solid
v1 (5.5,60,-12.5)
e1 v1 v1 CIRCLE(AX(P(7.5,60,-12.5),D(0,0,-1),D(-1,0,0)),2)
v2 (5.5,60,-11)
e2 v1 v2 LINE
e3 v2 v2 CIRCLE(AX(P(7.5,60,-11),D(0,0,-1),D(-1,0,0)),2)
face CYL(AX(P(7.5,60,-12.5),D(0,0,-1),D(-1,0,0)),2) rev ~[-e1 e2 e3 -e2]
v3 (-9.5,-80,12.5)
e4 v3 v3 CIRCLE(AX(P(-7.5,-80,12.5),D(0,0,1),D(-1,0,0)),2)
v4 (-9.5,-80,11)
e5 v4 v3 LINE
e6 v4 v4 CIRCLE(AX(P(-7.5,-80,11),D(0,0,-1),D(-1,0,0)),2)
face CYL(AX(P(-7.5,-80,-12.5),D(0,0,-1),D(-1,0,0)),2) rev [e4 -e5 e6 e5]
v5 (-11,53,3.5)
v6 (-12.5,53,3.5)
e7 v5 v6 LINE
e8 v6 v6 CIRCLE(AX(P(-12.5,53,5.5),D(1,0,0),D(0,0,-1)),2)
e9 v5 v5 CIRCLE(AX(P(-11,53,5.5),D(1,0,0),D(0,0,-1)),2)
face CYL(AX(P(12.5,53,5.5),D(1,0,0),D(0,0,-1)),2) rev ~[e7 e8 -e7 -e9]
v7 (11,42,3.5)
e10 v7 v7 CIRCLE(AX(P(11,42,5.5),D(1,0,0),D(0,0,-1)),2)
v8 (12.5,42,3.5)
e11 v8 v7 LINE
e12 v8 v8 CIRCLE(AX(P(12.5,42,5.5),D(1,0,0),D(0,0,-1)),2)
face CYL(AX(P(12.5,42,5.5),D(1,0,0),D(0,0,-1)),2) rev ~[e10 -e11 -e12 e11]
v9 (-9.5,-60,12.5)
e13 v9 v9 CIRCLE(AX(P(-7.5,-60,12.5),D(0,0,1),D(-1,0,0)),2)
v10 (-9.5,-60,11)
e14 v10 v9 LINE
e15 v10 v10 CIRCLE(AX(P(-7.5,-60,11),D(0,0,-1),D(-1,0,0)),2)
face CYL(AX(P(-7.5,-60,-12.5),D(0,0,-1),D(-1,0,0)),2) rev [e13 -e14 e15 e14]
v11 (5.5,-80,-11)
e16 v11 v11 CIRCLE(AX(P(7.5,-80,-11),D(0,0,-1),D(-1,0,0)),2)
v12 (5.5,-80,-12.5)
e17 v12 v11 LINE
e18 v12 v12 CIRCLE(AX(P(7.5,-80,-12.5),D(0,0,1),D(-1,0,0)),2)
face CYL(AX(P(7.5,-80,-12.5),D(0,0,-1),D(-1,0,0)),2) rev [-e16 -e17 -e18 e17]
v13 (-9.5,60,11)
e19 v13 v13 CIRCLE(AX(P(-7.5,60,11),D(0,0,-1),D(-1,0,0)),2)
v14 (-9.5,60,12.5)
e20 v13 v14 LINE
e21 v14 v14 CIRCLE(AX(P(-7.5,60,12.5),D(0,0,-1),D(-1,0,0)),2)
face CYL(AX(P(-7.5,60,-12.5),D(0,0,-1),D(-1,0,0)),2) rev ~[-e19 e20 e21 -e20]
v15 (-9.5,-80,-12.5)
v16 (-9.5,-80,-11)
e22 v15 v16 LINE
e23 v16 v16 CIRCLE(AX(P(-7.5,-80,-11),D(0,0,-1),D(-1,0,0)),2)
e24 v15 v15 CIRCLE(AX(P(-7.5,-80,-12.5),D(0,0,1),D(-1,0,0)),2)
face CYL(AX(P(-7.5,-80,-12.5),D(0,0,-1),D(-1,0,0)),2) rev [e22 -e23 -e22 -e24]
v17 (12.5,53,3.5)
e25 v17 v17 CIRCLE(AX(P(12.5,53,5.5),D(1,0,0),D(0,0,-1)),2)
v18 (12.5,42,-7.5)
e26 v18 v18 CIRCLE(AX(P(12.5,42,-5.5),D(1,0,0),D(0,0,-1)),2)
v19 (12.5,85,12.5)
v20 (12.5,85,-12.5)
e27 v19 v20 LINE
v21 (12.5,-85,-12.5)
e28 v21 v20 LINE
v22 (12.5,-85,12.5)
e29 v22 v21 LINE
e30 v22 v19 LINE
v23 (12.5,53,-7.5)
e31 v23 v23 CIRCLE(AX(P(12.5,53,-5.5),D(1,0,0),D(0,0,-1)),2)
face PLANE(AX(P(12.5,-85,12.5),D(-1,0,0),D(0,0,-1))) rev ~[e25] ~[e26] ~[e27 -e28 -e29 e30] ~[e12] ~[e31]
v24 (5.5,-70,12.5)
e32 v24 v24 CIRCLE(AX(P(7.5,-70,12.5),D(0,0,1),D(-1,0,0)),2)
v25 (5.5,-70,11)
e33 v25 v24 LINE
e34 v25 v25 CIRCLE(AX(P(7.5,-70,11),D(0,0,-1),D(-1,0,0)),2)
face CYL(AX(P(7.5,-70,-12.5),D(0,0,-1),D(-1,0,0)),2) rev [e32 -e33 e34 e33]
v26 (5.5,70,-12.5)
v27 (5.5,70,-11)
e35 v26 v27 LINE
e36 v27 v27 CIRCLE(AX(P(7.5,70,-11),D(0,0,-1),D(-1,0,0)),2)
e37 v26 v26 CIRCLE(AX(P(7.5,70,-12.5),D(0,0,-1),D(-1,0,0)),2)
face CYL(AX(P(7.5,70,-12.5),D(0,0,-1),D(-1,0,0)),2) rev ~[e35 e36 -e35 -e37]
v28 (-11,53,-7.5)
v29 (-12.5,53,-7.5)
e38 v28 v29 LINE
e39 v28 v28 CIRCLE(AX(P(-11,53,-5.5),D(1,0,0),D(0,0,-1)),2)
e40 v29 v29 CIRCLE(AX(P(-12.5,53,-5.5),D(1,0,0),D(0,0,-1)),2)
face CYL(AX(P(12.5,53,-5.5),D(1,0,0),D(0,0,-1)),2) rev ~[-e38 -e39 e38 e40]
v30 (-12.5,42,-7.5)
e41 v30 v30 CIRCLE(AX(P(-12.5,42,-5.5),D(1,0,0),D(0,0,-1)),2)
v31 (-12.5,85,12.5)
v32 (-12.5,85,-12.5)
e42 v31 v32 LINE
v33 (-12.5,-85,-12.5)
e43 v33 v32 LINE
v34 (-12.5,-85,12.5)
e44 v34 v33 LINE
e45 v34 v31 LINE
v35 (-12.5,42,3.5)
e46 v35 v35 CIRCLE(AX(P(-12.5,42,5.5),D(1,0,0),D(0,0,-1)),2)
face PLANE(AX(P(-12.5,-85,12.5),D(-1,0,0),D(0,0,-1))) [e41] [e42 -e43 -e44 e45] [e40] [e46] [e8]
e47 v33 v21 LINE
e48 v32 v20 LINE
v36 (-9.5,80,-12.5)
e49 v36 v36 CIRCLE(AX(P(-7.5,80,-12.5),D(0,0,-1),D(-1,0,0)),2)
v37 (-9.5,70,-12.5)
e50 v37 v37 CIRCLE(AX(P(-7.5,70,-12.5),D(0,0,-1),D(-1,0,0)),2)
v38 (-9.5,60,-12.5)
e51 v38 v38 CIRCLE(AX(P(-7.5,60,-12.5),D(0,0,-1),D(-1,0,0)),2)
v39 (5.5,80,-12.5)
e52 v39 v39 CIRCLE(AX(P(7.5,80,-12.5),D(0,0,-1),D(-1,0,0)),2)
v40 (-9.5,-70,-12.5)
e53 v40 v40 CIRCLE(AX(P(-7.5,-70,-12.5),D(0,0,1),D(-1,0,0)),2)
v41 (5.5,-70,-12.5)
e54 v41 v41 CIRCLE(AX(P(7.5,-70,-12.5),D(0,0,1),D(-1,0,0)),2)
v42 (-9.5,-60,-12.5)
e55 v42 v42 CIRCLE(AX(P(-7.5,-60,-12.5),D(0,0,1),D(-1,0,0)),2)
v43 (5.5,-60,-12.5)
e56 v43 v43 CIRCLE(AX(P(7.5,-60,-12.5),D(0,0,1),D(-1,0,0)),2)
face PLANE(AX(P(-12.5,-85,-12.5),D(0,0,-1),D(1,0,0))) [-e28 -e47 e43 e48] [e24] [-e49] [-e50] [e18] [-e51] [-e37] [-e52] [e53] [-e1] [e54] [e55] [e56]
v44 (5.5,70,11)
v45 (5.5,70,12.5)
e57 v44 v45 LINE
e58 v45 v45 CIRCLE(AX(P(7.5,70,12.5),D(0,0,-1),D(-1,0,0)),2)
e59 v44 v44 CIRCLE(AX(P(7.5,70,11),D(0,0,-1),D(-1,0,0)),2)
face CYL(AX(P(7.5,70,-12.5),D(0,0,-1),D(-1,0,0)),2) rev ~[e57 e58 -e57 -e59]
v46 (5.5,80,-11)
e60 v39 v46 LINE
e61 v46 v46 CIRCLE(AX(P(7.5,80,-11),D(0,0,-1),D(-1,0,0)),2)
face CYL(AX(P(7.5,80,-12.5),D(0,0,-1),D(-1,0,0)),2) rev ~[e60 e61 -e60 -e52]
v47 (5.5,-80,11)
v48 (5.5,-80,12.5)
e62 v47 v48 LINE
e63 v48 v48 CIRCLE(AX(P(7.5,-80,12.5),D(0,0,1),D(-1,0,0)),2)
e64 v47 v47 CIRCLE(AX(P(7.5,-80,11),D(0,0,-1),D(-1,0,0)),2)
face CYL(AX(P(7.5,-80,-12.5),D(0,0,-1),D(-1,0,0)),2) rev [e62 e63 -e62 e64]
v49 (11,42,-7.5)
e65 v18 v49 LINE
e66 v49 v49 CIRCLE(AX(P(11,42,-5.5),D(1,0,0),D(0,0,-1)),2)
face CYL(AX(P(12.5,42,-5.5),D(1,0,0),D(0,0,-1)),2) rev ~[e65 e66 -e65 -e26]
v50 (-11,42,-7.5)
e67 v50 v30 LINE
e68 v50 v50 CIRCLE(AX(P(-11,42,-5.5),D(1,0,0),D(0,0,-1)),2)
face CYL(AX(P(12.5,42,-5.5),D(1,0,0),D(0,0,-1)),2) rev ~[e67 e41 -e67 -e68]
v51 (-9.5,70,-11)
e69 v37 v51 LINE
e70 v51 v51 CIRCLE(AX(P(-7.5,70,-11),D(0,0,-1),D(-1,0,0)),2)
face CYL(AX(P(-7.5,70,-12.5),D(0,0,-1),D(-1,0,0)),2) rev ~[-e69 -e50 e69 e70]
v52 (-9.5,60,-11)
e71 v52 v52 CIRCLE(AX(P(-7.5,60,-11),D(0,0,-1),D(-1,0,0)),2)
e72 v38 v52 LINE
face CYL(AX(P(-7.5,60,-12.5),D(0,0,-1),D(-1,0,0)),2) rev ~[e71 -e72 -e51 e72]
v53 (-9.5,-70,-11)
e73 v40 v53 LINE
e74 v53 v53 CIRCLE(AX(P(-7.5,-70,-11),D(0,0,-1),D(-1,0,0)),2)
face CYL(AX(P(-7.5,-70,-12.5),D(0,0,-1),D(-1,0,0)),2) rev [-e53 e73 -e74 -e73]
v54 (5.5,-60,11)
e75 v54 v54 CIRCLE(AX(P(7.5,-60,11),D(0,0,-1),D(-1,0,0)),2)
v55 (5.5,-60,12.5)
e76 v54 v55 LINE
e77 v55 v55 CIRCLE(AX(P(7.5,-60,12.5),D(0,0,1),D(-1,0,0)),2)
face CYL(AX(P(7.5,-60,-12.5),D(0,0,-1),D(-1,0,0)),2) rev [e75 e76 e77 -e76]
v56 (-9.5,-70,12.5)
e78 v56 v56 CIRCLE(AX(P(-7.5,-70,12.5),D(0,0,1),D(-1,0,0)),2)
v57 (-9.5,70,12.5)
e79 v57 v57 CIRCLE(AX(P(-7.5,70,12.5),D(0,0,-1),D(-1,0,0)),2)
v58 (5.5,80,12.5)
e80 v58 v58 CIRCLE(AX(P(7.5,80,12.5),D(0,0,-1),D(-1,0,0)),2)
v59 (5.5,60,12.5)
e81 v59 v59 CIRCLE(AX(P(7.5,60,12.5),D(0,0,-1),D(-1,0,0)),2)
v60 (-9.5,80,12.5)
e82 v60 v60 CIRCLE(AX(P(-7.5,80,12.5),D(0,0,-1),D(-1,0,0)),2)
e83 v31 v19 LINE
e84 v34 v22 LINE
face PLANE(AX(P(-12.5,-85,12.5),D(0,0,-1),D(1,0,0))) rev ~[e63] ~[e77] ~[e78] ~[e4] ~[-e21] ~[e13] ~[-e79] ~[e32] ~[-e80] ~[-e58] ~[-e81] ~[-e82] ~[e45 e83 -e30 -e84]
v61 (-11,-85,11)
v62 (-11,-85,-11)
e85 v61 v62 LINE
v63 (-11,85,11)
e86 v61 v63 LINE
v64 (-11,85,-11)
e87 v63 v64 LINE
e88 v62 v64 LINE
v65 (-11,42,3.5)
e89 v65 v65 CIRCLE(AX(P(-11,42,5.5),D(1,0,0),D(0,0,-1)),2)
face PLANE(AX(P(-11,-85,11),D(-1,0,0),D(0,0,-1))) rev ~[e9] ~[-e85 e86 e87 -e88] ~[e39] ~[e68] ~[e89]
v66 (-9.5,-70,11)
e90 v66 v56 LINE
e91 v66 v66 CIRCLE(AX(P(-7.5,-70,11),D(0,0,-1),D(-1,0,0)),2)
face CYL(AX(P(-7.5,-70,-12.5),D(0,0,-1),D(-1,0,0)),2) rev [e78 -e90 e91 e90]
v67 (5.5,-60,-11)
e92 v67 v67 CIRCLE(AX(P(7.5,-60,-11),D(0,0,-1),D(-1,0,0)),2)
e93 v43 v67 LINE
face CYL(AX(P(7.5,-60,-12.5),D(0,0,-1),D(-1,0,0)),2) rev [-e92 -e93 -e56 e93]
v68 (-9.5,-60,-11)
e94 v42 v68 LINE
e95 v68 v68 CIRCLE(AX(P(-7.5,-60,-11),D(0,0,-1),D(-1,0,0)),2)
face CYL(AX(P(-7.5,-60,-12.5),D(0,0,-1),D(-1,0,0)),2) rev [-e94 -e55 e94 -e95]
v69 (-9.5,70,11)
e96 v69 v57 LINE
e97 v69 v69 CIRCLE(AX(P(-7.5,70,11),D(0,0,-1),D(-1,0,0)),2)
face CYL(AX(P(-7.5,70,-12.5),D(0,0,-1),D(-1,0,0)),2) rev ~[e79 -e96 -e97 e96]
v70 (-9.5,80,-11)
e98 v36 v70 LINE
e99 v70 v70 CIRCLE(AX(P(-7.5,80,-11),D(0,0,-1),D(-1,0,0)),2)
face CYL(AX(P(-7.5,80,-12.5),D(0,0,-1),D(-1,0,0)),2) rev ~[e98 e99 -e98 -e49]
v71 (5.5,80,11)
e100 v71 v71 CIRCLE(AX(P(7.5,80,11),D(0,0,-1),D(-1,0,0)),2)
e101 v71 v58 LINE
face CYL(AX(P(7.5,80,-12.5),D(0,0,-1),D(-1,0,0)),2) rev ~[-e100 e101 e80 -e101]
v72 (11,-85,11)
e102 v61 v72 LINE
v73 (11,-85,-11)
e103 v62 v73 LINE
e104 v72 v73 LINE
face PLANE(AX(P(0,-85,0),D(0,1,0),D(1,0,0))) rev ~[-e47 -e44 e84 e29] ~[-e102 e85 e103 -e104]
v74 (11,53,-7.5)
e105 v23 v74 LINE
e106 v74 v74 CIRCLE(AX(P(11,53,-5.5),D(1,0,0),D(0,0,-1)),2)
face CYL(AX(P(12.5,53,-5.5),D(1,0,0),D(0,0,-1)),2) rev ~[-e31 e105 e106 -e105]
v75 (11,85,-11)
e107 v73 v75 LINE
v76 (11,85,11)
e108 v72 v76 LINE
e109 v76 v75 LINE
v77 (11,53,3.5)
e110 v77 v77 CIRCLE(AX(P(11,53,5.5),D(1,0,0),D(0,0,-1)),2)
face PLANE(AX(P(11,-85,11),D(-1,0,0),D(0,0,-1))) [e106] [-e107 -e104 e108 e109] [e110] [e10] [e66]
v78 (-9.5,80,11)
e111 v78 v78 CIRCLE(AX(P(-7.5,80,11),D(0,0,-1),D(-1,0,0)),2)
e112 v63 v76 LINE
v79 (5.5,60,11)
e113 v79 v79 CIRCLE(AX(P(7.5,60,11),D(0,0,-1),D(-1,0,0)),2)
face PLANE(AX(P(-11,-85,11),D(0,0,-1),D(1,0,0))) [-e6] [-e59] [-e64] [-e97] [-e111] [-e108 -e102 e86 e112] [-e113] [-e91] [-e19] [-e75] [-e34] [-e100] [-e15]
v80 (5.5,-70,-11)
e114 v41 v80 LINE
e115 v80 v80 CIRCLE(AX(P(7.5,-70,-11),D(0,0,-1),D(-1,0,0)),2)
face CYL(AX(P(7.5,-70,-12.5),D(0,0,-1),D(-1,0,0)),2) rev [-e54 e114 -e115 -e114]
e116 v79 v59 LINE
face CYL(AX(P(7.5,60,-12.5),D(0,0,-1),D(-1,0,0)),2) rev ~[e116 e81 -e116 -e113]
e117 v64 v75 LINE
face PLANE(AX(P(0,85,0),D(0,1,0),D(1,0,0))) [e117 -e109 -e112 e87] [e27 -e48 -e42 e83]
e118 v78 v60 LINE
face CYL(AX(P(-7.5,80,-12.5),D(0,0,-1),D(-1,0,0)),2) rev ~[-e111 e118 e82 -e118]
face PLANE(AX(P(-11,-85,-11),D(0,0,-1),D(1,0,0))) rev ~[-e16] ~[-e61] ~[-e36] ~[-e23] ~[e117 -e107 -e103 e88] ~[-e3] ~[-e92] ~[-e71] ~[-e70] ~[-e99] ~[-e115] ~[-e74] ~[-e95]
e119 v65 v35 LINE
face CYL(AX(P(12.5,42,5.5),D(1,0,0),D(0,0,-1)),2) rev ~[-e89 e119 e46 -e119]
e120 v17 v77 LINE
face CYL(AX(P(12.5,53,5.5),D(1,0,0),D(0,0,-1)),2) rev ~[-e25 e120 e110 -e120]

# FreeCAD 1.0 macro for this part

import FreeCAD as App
import Part
import Sketcher

V = App.Vector
Q = App.Units.Quantity

doc = App.newDocument("Part")
body = doc.addObject("PartDesign::Body", "Body")

# Sketch on XZ plane
sketch1 = body.newObject("Sketcher::SketchObject", "Sketch")
sketch1.AttachmentSupport = (doc.getObject("XZ_Plane"), [""])
sketch1.MapMode = "FlatFace"
sketch1.addGeometry([
    Part.LineSegment(V(-12.5, -12.5, 0), V(-12.5, 12.5, 0)),  # 0
    Part.LineSegment(V(-12.5, 12.5, 0), V(12.5, 12.5, 0)),  # 1
    Part.LineSegment(V(12.5, 12.5, 0), V(12.5, -12.5, 0)),  # 2
    Part.LineSegment(V(12.5, -12.5, 0), V(-12.5, -12.5, 0)),  # 3
    Part.LineSegment(V(11, 11, 0), V(-11, 11, 0)),  # 4
    Part.LineSegment(V(-11, 11, 0), V(-11, -11, 0)),  # 5
    Part.LineSegment(V(-11, -11, 0), V(11, -11, 0)),  # 6
    Part.LineSegment(V(11, -11, 0), V(11, 11, 0)),  # 7
], False)
sketch1.addConstraint([
    Sketcher.Constraint("Coincident", 0, 2, 1, 1),
    Sketcher.Constraint("Coincident", 1, 2, 2, 1),
    Sketcher.Constraint("Coincident", 2, 2, 3, 1),
    Sketcher.Constraint("Coincident", 3, 2, 0, 1),
    Sketcher.Constraint("Coincident", 4, 2, 5, 1),
    Sketcher.Constraint("Coincident", 5, 2, 6, 1),
    Sketcher.Constraint("Coincident", 6, 2, 7, 1),
    Sketcher.Constraint("Coincident", 7, 2, 4, 1),
    Sketcher.Constraint("Vertical", 0),
    Sketcher.Constraint("Horizontal", 1),
    Sketcher.Constraint("Vertical", 2),
    Sketcher.Constraint("Horizontal", 3),
    Sketcher.Constraint("Horizontal", 4),
    Sketcher.Constraint("Vertical", 5),
    Sketcher.Constraint("Horizontal", 6),
    Sketcher.Constraint("Vertical", 7),
    Sketcher.Constraint("Symmetric", 0, 2, 2, 2, -1, 1),
    Sketcher.Constraint("Symmetric", 4, 2, 6, 2, -1, 1),
    Sketcher.Constraint("Equal", 3, 0),
    Sketcher.Constraint("Equal", 6, 5),
    Sketcher.Constraint("DistanceX", 1, 1, 1, 2, Q("25 mm")),
    Sketcher.Constraint("DistanceX", 4, 2, 4, 1, Q("22 mm")),
])
pad1 = body.newObject("PartDesign::Pad", "Pad")
pad1.Profile = sketch1
pad1.Type = "TwoLengths"
pad1.Length = 85
pad1.Length2 = 85
pad1.Reversed = True

# Sketch on XY plane
sketch2 = body.newObject("Sketcher::SketchObject", "Sketch001")
sketch2.AttachmentSupport = (doc.getObject("XY_Plane"), [""])
sketch2.MapMode = "FlatFace"
sketch2.AttachmentOffset = App.Placement(V(0, 0, -12.5), App.Rotation())
sketch2.addGeometry([
    Part.Circle(V(-7.5, 80, 0), V(0, 0, 1), 2),  # 0
    Part.Circle(V(-7.5, 70, 0), V(0, 0, 1), 2),  # 1
    Part.Circle(V(7.5, 80, 0), V(0, 0, 1), 2),  # 2
    Part.Circle(V(7.5, 70, 0), V(0, 0, 1), 2),  # 3
    Part.Circle(V(-7.5, 60, 0), V(0, 0, 1), 2),  # 4
    Part.Circle(V(7.5, 60, 0), V(0, 0, 1), 2),  # 5
], False)
sketch2.addConstraint([
    Sketcher.Constraint("Equal", 0, 1),
    Sketcher.Constraint("Equal", 1, 2),
    Sketcher.Constraint("Equal", 2, 3),
    Sketcher.Constraint("Equal", 3, 4),
    Sketcher.Constraint("Equal", 4, 5),
    Sketcher.Constraint("Symmetric", 0, 3, 2, 3, -2),
    Sketcher.Constraint("Symmetric", 1, 3, 3, 3, -2),
    Sketcher.Constraint("Symmetric", 4, 3, 5, 3, -2),
    Sketcher.Constraint("Vertical", 0, 3, 1, 3),
    Sketcher.Constraint("Vertical", 1, 3, 4, 3),
    Sketcher.Constraint("Diameter", 0, Q("4 mm")),
    Sketcher.Constraint("DistanceY", -1, 1, 0, 3, Q("80 mm")),
    Sketcher.Constraint("DistanceY", -1, 1, 1, 3, Q("70 mm")),
    Sketcher.Constraint("DistanceY", -1, 1, 4, 3, Q("60 mm")),
    Sketcher.Constraint("DistanceX", 0, 3, 2, 3, Q("15 mm")),
])
pocket1 = body.newObject("PartDesign::Pocket", "Pocket")
pocket1.Profile = sketch2
pocket1.Length = 25
pocket1.Reversed = True
doc.recompute()

mirrored = body.newObject("PartDesign::Mirrored", "Mirrored")
mirrored.Originals = [pocket1]
mirrored.MirrorPlane = (doc.getObject("XZ_Plane"), [""])
body.Tip = mirrored

# Sketch on YZ plane
sketch3 = body.newObject("Sketcher::SketchObject", "Sketch002")
sketch3.AttachmentSupport = (doc.getObject("YZ_Plane"), [""])
sketch3.MapMode = "FlatFace"
sketch3.AttachmentOffset = App.Placement(V(0, 0, 12.5), App.Rotation())
sketch3.addGeometry([
    Part.Circle(V(53, -5.5, 0), V(0, 0, 1), 2),
    Part.Circle(V(42, -5.5, 0), V(0, 0, 1), 2),
    Part.Circle(V(53, 5.5, 0), V(0, 0, 1), 2),
    Part.Circle(V(42, 5.5, 0), V(0, 0, 1), 2),
], False)
sketch3.addConstraint([
    Sketcher.Constraint("Equal", 0, 1),
    Sketcher.Constraint("Equal", 1, 2),
    Sketcher.Constraint("Equal", 2, 3),
    Sketcher.Constraint("Symmetric", 0, 3, 2, 3, -1),
    Sketcher.Constraint("Symmetric", 1, 3, 3, 3, -1),
    Sketcher.Constraint("Horizontal", 0, 3, 1, 3),
    Sketcher.Constraint("Diameter", 0, Q("4 mm")),
    Sketcher.Constraint("DistanceX", -1, 1, 0, 3, Q("53 mm")),
    Sketcher.Constraint("DistanceX", -1, 1, 1, 3, Q("42 mm")),
    Sketcher.Constraint("DistanceY", 0, 3, 2, 3, Q("11 mm")),
])
pocket2 = body.newObject("PartDesign::Pocket", "Pocket001")
pocket2.Profile = sketch3
pocket2.Length = 25

doc.recompute()
